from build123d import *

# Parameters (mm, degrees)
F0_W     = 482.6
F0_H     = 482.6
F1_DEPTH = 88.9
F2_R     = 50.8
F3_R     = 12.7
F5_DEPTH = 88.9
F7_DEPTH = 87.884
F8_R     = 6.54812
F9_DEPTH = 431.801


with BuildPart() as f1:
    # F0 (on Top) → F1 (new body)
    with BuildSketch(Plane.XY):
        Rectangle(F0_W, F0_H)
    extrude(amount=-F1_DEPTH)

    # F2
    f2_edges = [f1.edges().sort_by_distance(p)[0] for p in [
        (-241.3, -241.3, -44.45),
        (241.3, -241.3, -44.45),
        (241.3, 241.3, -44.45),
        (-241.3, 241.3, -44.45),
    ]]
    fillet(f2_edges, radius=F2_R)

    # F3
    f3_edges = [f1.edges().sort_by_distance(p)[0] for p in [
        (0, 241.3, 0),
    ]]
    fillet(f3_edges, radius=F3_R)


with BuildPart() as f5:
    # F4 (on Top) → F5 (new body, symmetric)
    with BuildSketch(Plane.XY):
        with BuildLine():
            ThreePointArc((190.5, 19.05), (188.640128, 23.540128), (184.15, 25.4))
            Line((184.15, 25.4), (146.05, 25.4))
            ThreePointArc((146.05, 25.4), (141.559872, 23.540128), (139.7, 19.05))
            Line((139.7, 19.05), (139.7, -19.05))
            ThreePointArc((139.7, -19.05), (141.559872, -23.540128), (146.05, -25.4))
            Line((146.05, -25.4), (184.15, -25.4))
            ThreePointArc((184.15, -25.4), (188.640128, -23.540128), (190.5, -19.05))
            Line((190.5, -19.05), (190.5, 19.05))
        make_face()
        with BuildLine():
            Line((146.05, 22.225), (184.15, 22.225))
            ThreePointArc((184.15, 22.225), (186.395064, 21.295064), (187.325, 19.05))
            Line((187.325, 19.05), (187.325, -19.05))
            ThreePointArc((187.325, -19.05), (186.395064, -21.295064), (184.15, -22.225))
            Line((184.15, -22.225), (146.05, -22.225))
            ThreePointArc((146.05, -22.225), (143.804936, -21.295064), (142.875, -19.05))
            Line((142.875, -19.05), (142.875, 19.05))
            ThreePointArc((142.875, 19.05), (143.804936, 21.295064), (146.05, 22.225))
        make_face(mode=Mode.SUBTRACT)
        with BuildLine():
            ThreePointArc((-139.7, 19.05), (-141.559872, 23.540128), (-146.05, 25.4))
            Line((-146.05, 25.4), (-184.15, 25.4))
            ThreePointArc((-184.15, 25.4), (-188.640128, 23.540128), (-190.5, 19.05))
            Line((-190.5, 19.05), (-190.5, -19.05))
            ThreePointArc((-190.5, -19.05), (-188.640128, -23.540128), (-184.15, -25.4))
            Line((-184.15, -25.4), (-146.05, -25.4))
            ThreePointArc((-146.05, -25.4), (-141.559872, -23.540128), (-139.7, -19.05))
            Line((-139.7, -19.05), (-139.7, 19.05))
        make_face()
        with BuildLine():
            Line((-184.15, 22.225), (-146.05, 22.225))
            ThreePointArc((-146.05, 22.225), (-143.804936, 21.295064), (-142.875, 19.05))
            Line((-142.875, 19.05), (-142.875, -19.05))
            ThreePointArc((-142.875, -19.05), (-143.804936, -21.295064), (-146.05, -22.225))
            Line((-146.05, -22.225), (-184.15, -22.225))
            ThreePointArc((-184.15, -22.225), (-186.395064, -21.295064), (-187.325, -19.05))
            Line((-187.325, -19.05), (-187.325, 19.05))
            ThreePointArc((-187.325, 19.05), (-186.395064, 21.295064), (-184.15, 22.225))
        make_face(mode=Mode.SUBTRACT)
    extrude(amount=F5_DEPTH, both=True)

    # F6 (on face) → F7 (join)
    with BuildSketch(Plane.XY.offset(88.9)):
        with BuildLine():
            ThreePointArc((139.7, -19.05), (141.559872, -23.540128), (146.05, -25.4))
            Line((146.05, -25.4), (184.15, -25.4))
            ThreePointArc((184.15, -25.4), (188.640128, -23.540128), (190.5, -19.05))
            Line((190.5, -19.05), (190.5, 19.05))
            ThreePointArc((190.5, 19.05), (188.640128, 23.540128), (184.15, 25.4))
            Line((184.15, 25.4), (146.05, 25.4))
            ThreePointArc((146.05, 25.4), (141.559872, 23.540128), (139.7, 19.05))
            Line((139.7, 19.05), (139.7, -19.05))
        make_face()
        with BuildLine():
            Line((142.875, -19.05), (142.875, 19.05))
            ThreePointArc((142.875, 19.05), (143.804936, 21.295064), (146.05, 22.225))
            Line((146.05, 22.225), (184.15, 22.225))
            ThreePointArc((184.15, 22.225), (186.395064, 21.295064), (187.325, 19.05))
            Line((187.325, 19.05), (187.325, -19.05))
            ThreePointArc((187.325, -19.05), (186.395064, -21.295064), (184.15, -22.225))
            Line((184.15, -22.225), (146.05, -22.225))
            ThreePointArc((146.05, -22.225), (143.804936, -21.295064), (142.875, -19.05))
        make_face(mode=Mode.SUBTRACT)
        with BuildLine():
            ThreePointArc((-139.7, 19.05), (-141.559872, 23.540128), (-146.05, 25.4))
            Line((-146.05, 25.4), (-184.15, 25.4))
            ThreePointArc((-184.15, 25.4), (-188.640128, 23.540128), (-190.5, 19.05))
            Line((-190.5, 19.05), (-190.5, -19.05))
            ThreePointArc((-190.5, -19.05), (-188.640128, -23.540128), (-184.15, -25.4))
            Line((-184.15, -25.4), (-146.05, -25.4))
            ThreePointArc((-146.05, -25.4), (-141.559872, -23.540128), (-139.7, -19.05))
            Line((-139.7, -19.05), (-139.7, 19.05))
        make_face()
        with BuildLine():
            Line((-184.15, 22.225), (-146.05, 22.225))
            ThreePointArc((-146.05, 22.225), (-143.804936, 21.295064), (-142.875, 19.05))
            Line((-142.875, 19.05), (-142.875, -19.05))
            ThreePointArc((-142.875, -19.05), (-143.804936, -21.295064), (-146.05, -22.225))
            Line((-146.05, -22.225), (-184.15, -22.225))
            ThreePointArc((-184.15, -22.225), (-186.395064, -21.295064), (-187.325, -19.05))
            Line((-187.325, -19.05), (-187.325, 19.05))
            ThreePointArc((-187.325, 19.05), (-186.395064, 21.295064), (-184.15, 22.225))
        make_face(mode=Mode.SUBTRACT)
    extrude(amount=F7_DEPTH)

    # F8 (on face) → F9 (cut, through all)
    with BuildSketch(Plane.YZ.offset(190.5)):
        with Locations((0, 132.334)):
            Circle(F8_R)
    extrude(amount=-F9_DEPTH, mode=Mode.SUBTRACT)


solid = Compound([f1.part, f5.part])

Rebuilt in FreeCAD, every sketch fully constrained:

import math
import FreeCAD as App
import Part
import Sketcher

V = App.Vector
Q = App.Units.Quantity


def edges_at(feature, points):
    """Names of the edges that pass closest to the given points."""
    edges = feature.Shape.Edges
    near = lambda p: min(range(len(edges)), key=lambda i: edges[i].distToShape(Part.Vertex(*p))[0])
    return sorted({f"Edge{near(p) + 1}" for p in points})

doc = App.newDocument("Part")
body = doc.addObject("PartDesign::Body", "Body")

# Sketch on XY plane
sketch1 = body.newObject("Sketcher::SketchObject", "Sketch")
sketch1.AttachmentSupport = (doc.getObject("XY_Plane"), [""])
sketch1.MapMode = "FlatFace"
sketch1.addGeometry([
    Part.LineSegment(V(-241, 241, 0), V(-241, -241, 0)),
    Part.LineSegment(V(-241, -241, 0), V(241, -241, 0)),
    Part.LineSegment(V(241, -241, 0), V(241, 241, 0)),
    Part.LineSegment(V(241, 241, 0), V(-241, 241, 0)),
], False)
sketch1.addConstraint([
    Sketcher.Constraint("Coincident", 0, 2, 1, 1),
    Sketcher.Constraint("Coincident", 1, 2, 2, 1),
    Sketcher.Constraint("Coincident", 2, 2, 3, 1),
    Sketcher.Constraint("Coincident", 3, 2, 0, 1),
    Sketcher.Constraint("Vertical", 0),
    Sketcher.Constraint("Horizontal", 1),
    Sketcher.Constraint("Vertical", 2),
    Sketcher.Constraint("Horizontal", 3),
    Sketcher.Constraint("Symmetric", 0, 2, 2, 2, -1, 1),
    Sketcher.Constraint("Equal", 3, 0),
    Sketcher.Constraint("DistanceX", 1, 1, 1, 2, Q("19 in")),
])
pad1 = body.newObject("PartDesign::Pad", "Pad")
pad1.Profile = sketch1
pad1.Length = Q("3.5 in")
pad1.Reversed = True
doc.recompute()

fillet = body.newObject("PartDesign::Fillet", "Fillet")
fillet.Base = (pad1, edges_at(pad1, [
    (-241.3, -241.3, -44.45),
    (241.3, -241.3, -44.45),
    (241.3, 241.3, -44.45),
    (-241.3, 241.3, -44.45),
]))
fillet.Radius = Q("2 in")
doc.recompute()

fillet2 = body.newObject("PartDesign::Fillet", "Fillet001")
fillet2.Base = (fillet, edges_at(fillet, [(0, 241.3, 0)]))
fillet2.Radius = Q("0.5 in")
body2 = doc.addObject("PartDesign::Body", "Body001")
body2.AllowCompound = True

# Sketch on XY plane
sketch2 = body2.newObject("Sketcher::SketchObject", "Sketch001")
sketch2.AttachmentSupport = (doc.getObject("XY_Plane001"), [""])
sketch2.MapMode = "FlatFace"
sketch2.addGeometry([
    Part.ArcOfCircle(Part.Circle(V(184.1, 19, 0), V(0, 0, 1), 6.4), math.radians(0), math.radians(90)),  # 0
    Part.LineSegment(V(184.2, 25.4, 0), V(146.1, 25.4, 0)),  # 1
    Part.ArcOfCircle(Part.Circle(V(146.1, 19, 0), V(0, 0, 1), 6.4), math.radians(90), math.radians(180)),  # 2
    Part.LineSegment(V(139.7, 19.1, 0), V(139.7, -19.1, 0)),  # 3
    Part.ArcOfCircle(Part.Circle(V(146.1, -19, 0), V(0, 0, 1), 6.4), math.radians(-180), math.radians(-90)),  # 4
    Part.LineSegment(V(146.1, -25.4, 0), V(184.2, -25.4, 0)),  # 5
    Part.ArcOfCircle(Part.Circle(V(184.1, -19, 0), V(0, 0, 1), 6.4), math.radians(-90), math.radians(0)),  # 6
    Part.LineSegment(V(190.5, -19.1, 0), V(190.5, 19.1, 0)),  # 7
    Part.ArcOfCircle(Part.Circle(V(146.1, 19, 0), V(0, 0, 1), 3.2), math.radians(90), math.radians(180)),  # 8
    Part.LineSegment(V(146.1, 22.2, 0), V(184.2, 22.2, 0)),  # 9
    Part.ArcOfCircle(Part.Circle(V(184.1, 19, 0), V(0, 0, 1), 3.2), math.radians(0), math.radians(90)),  # 10
    Part.LineSegment(V(187.3, 19.1, 0), V(187.3, -19.1, 0)),  # 11
    Part.ArcOfCircle(Part.Circle(V(184.1, -19, 0), V(0, 0, 1), 3.2), math.radians(-90), math.radians(0)),  # 12
    Part.LineSegment(V(184.2, -22.2, 0), V(146.1, -22.2, 0)),  # 13
    Part.ArcOfCircle(Part.Circle(V(146.1, -19, 0), V(0, 0, 1), 3.2), math.radians(-180), math.radians(-90)),  # 14
    Part.LineSegment(V(142.9, -19.1, 0), V(142.9, 19.1, 0)),  # 15
    Part.ArcOfCircle(Part.Circle(V(-146.1, 19, 0), V(0, 0, 1), 6.4), math.radians(0), math.radians(90)),  # 16
    Part.LineSegment(V(-146.1, 25.4, 0), V(-184.2, 25.4, 0)),  # 17
    Part.ArcOfCircle(Part.Circle(V(-184.1, 19, 0), V(0, 0, 1), 6.4), math.radians(90), math.radians(180)),  # 18
    Part.LineSegment(V(-190.5, 19.1, 0), V(-190.5, -19.1, 0)),  # 19
    Part.ArcOfCircle(Part.Circle(V(-184.1, -19, 0), V(0, 0, 1), 6.4), math.radians(-180), math.radians(-90)),  # 20
    Part.LineSegment(V(-184.2, -25.4, 0), V(-146.1, -25.4, 0)),  # 21
    Part.ArcOfCircle(Part.Circle(V(-146.1, -19, 0), V(0, 0, 1), 6.4), math.radians(-90), math.radians(0)),  # 22
    Part.LineSegment(V(-139.7, -19.1, 0), V(-139.7, 19.1, 0)),  # 23
    Part.ArcOfCircle(Part.Circle(V(-184.1, 19, 0), V(0, 0, 1), 3.2), math.radians(90), math.radians(180)),  # 24
    Part.LineSegment(V(-184.2, 22.2, 0), V(-146.1, 22.2, 0)),  # 25
    Part.ArcOfCircle(Part.Circle(V(-146.1, 19, 0), V(0, 0, 1), 3.2), math.radians(0), math.radians(90)),  # 26
    Part.LineSegment(V(-142.9, 19.1, 0), V(-142.9, -19.1, 0)),  # 27
    Part.ArcOfCircle(Part.Circle(V(-146.1, -19, 0), V(0, 0, 1), 3.2), math.radians(-90), math.radians(0)),  # 28
    Part.LineSegment(V(-146.1, -22.2, 0), V(-184.2, -22.2, 0)),  # 29
    Part.ArcOfCircle(Part.Circle(V(-184.1, -19, 0), V(0, 0, 1), 3.2), math.radians(-180), math.radians(-90)),  # 30
    Part.LineSegment(V(-187.3, -19.1, 0), V(-187.3, 19.1, 0)),  # 31
], False)
sketch2.addConstraint([
    Sketcher.Constraint("Tangent", 0, 2, 1, 1),
    Sketcher.Constraint("Tangent", 1, 2, 2, 1),
    Sketcher.Constraint("Tangent", 2, 2, 3, 1),
    Sketcher.Constraint("Tangent", 3, 2, 4, 1),
    Sketcher.Constraint("Tangent", 4, 2, 5, 1),
    Sketcher.Constraint("Tangent", 5, 2, 6, 1),
    Sketcher.Constraint("Tangent", 6, 2, 7, 1),
    Sketcher.Constraint("Tangent", 7, 2, 0, 1),
    Sketcher.Constraint("Tangent", 8, 1, 9, 1),
    Sketcher.Constraint("Tangent", 9, 2, 10, 2),
    Sketcher.Constraint("Tangent", 10, 1, 11, 1),
    Sketcher.Constraint("Tangent", 11, 2, 12, 2),
    Sketcher.Constraint("Tangent", 12, 1, 13, 1),
    Sketcher.Constraint("Tangent", 13, 2, 14, 2),
    Sketcher.Constraint("Tangent", 14, 1, 15, 1),
    Sketcher.Constraint("Tangent", 15, 2, 8, 2),
    Sketcher.Constraint("Tangent", 16, 2, 17, 1),
    Sketcher.Constraint("Tangent", 17, 2, 18, 1),
    Sketcher.Constraint("Tangent", 18, 2, 19, 1),
    Sketcher.Constraint("Tangent", 19, 2, 20, 1),
    Sketcher.Constraint("Tangent", 20, 2, 21, 1),
    Sketcher.Constraint("Tangent", 21, 2, 22, 1),
    Sketcher.Constraint("Tangent", 22, 2, 23, 1),
    Sketcher.Constraint("Tangent", 23, 2, 16, 1),
    Sketcher.Constraint("Tangent", 24, 1, 25, 1),
    Sketcher.Constraint("Tangent", 25, 2, 26, 2),
    Sketcher.Constraint("Tangent", 26, 1, 27, 1),
    Sketcher.Constraint("Tangent", 27, 2, 28, 2),
    Sketcher.Constraint("Tangent", 28, 1, 29, 1),
    Sketcher.Constraint("Tangent", 29, 2, 30, 2),
    Sketcher.Constraint("Tangent", 30, 1, 31, 1),
    Sketcher.Constraint("Tangent", 31, 2, 24, 2),
    Sketcher.Constraint("Horizontal", 1),
    Sketcher.Constraint("Vertical", 3),
    Sketcher.Constraint("Horizontal", 5),
    Sketcher.Constraint("Vertical", 7),
    Sketcher.Constraint("Horizontal", 9),
    Sketcher.Constraint("Vertical", 11),
    Sketcher.Constraint("Horizontal", 13),
    Sketcher.Constraint("Vertical", 15),
    Sketcher.Constraint("Horizontal", 17),
    Sketcher.Constraint("Vertical", 19),
    Sketcher.Constraint("Horizontal", 21),
    Sketcher.Constraint("Vertical", 23),
    Sketcher.Constraint("Horizontal", 25),
    Sketcher.Constraint("Vertical", 27),
    Sketcher.Constraint("Horizontal", 29),
    Sketcher.Constraint("Vertical", 31),
    Sketcher.Constraint("Coincident", 8, 3, 2, 3),
    Sketcher.Constraint("Coincident", 10, 3, 0, 3),
    Sketcher.Constraint("Coincident", 12, 3, 6, 3),
    Sketcher.Constraint("Coincident", 24, 3, 18, 3),
    Sketcher.Constraint("Coincident", 26, 3, 16, 3),
    Sketcher.Constraint("Coincident", 28, 3, 22, 3),
    Sketcher.Constraint("Equal", 0, 2),
    Sketcher.Constraint("Equal", 2, 4),
    Sketcher.Constraint("Equal", 4, 6),
    Sketcher.Constraint("Equal", 12, 14),
    Sketcher.Constraint("Equal", 6, 16),
    Sketcher.Constraint("Equal", 16, 18),
    Sketcher.Constraint("Equal", 18, 20),
    Sketcher.Constraint("Equal", 20, 22),
    Sketcher.Constraint("Equal", 14, 24),
    Sketcher.Constraint("Equal", 28, 30),
    Sketcher.Constraint("Symmetric", 4, 3, 16, 3, -1, 1),
    Sketcher.Constraint("Symmetric", 0, 3, 20, 3, -1, 1),
    Sketcher.Constraint("Horizontal", 10, 3, 16, 3),
    Sketcher.Constraint("Equal", 29, 3),
    Sketcher.Constraint("Radius", 0, Q("0.25 in")),
    Sketcher.Constraint("DistanceX", 1, 2, 1, 1, Q("1.5 in")),
    Sketcher.Constraint("Radius", 8, Q("0.125 in")),
    Sketcher.Constraint("DistanceX", 16, 3, 0, 3, Q("13 in")),
])
pad2 = body2.newObject("PartDesign::Pad", "Pad001")
pad2.Profile = sketch2
pad2.Length = Q("7 in")
pad2.Midplane = True

# Sketch on XY plane
sketch3 = body2.newObject("Sketcher::SketchObject", "Sketch002")
sketch3.AttachmentSupport = (doc.getObject("XY_Plane001"), [""])
sketch3.MapMode = "FlatFace"
sketch3.AttachmentOffset = App.Placement(V(0, 0, 3.5 * 25.4), App.Rotation())
sketch3.addGeometry([
    Part.ArcOfCircle(Part.Circle(V(146.1, -19, 0), V(0, 0, 1), 6.4), math.radians(-180), math.radians(-90)),  # 0
    Part.LineSegment(V(146.1, -25.4, 0), V(184.2, -25.4, 0)),  # 1
    Part.ArcOfCircle(Part.Circle(V(184.1, -19, 0), V(0, 0, 1), 6.4), math.radians(-90), math.radians(0)),  # 2
    Part.LineSegment(V(190.5, -19.1, 0), V(190.5, 19.1, 0)),  # 3
    Part.ArcOfCircle(Part.Circle(V(184.1, 19, 0), V(0, 0, 1), 6.4), math.radians(0), math.radians(90)),  # 4
    Part.LineSegment(V(184.2, 25.4, 0), V(146.1, 25.4, 0)),  # 5
    Part.ArcOfCircle(Part.Circle(V(146.1, 19, 0), V(0, 0, 1), 6.4), math.radians(90), math.radians(180)),  # 6
    Part.LineSegment(V(139.7, 19.1, 0), V(139.7, -19.1, 0)),  # 7
    Part.ArcOfCircle(Part.Circle(V(146.1, -19, 0), V(0, 0, 1), 3.2), math.radians(-180), math.radians(-90)),  # 8
    Part.LineSegment(V(142.9, -19.1, 0), V(142.9, 19.1, 0)),  # 9
    Part.ArcOfCircle(Part.Circle(V(146.1, 19, 0), V(0, 0, 1), 3.2), math.radians(90), math.radians(180)),  # 10
    Part.LineSegment(V(146.1, 22.2, 0), V(184.2, 22.2, 0)),  # 11
    Part.ArcOfCircle(Part.Circle(V(184.1, 19, 0), V(0, 0, 1), 3.2), math.radians(0), math.radians(90)),  # 12
    Part.LineSegment(V(187.3, 19.1, 0), V(187.3, -19.1, 0)),  # 13
    Part.ArcOfCircle(Part.Circle(V(184.1, -19, 0), V(0, 0, 1), 3.2), math.radians(-90), math.radians(0)),  # 14
    Part.LineSegment(V(184.2, -22.2, 0), V(146.1, -22.2, 0)),  # 15
    Part.ArcOfCircle(Part.Circle(V(-146.1, 19, 0), V(0, 0, 1), 6.4), math.radians(0), math.radians(90)),  # 16
    Part.LineSegment(V(-146.1, 25.4, 0), V(-184.2, 25.4, 0)),  # 17
    Part.ArcOfCircle(Part.Circle(V(-184.1, 19, 0), V(0, 0, 1), 6.4), math.radians(90), math.radians(180)),  # 18
    Part.LineSegment(V(-190.5, 19.1, 0), V(-190.5, -19.1, 0)),  # 19
    Part.ArcOfCircle(Part.Circle(V(-184.1, -19, 0), V(0, 0, 1), 6.4), math.radians(-180), math.radians(-90)),  # 20
    Part.LineSegment(V(-184.2, -25.4, 0), V(-146.1, -25.4, 0)),  # 21
    Part.ArcOfCircle(Part.Circle(V(-146.1, -19, 0), V(0, 0, 1), 6.4), math.radians(-90), math.radians(0)),  # 22
    Part.LineSegment(V(-139.7, -19.1, 0), V(-139.7, 19.1, 0)),  # 23
    Part.ArcOfCircle(Part.Circle(V(-184.1, 19, 0), V(0, 0, 1), 3.2), math.radians(90), math.radians(180)),  # 24
    Part.LineSegment(V(-184.2, 22.2, 0), V(-146.1, 22.2, 0)),  # 25
    Part.ArcOfCircle(Part.Circle(V(-146.1, 19, 0), V(0, 0, 1), 3.2), math.radians(0), math.radians(90)),  # 26
    Part.LineSegment(V(-142.9, 19.1, 0), V(-142.9, -19.1, 0)),  # 27
    Part.ArcOfCircle(Part.Circle(V(-146.1, -19, 0), V(0, 0, 1), 3.2), math.radians(-90), math.radians(0)),  # 28
    Part.LineSegment(V(-146.1, -22.2, 0), V(-184.2, -22.2, 0)),  # 29
    Part.ArcOfCircle(Part.Circle(V(-184.1, -19, 0), V(0, 0, 1), 3.2), math.radians(-180), math.radians(-90)),  # 30
    Part.LineSegment(V(-187.3, -19.1, 0), V(-187.3, 19.1, 0)),  # 31
], False)
sketch3.addConstraint([
    Sketcher.Constraint("Tangent", 0, 2, 1, 1),
    Sketcher.Constraint("Tangent", 1, 2, 2, 1),
    Sketcher.Constraint("Tangent", 2, 2, 3, 1),
    Sketcher.Constraint("Tangent", 3, 2, 4, 1),
    Sketcher.Constraint("Tangent", 4, 2, 5, 1),
    Sketcher.Constraint("Tangent", 5, 2, 6, 1),
    Sketcher.Constraint("Tangent", 6, 2, 7, 1),
    Sketcher.Constraint("Tangent", 7, 2, 0, 1),
    Sketcher.Constraint("Tangent", 8, 1, 9, 1),
    Sketcher.Constraint("Tangent", 9, 2, 10, 2),
    Sketcher.Constraint("Tangent", 10, 1, 11, 1),
    Sketcher.Constraint("Tangent", 11, 2, 12, 2),
    Sketcher.Constraint("Tangent", 12, 1, 13, 1),
    Sketcher.Constraint("Tangent", 13, 2, 14, 2),
    Sketcher.Constraint("Tangent", 14, 1, 15, 1),
    Sketcher.Constraint("Tangent", 15, 2, 8, 2),
    Sketcher.Constraint("Tangent", 16, 2, 17, 1),
    Sketcher.Constraint("Tangent", 17, 2, 18, 1),
    Sketcher.Constraint("Tangent", 18, 2, 19, 1),
    Sketcher.Constraint("Tangent", 19, 2, 20, 1),
    Sketcher.Constraint("Tangent", 20, 2, 21, 1),
    Sketcher.Constraint("Tangent", 21, 2, 22, 1),
    Sketcher.Constraint("Tangent", 22, 2, 23, 1),
    Sketcher.Constraint("Tangent", 23, 2, 16, 1),
    Sketcher.Constraint("Tangent", 24, 1, 25, 1),
    Sketcher.Constraint("Tangent", 25, 2, 26, 2),
    Sketcher.Constraint("Tangent", 26, 1, 27, 1),
    Sketcher.Constraint("Tangent", 27, 2, 28, 2),
    Sketcher.Constraint("Tangent", 28, 1, 29, 1),
    Sketcher.Constraint("Tangent", 29, 2, 30, 2),
    Sketcher.Constraint("Tangent", 30, 1, 31, 1),
    Sketcher.Constraint("Tangent", 31, 2, 24, 2),
    Sketcher.Constraint("Horizontal", 1),
    Sketcher.Constraint("Vertical", 3),
    Sketcher.Constraint("Horizontal", 5),
    Sketcher.Constraint("Vertical", 7),
    Sketcher.Constraint("Vertical", 9),
    Sketcher.Constraint("Horizontal", 11),
    Sketcher.Constraint("Vertical", 13),
    Sketcher.Constraint("Horizontal", 15),
    Sketcher.Constraint("Horizontal", 17),
    Sketcher.Constraint("Vertical", 19),
    Sketcher.Constraint("Horizontal", 21),
    Sketcher.Constraint("Vertical", 23),
    Sketcher.Constraint("Horizontal", 25),
    Sketcher.Constraint("Vertical", 27),
    Sketcher.Constraint("Horizontal", 29),
    Sketcher.Constraint("Vertical", 31),
    Sketcher.Constraint("Coincident", 8, 3, 0, 3),
    Sketcher.Constraint("Coincident", 10, 3, 6, 3),
    Sketcher.Constraint("Coincident", 12, 3, 4, 3),
    Sketcher.Constraint("Coincident", 24, 3, 18, 3),
    Sketcher.Constraint("Coincident", 26, 3, 16, 3),
    Sketcher.Constraint("Coincident", 28, 3, 22, 3),
    Sketcher.Constraint("Equal", 0, 2),
    Sketcher.Constraint("Equal", 2, 4),
    Sketcher.Constraint("Equal", 4, 6),
    Sketcher.Constraint("Equal", 12, 14),
    Sketcher.Constraint("Equal", 6, 16),
    Sketcher.Constraint("Equal", 16, 18),
    Sketcher.Constraint("Equal", 18, 20),
    Sketcher.Constraint("Equal", 20, 22),
    Sketcher.Constraint("Equal", 14, 24),
    Sketcher.Constraint("Equal", 28, 30),
    Sketcher.Constraint("Symmetric", 0, 3, 16, 3, -1, 1),
    Sketcher.Constraint("Symmetric", 4, 3, 20, 3, -1, 1),
    Sketcher.Constraint("Horizontal", 12, 3, 16, 3),
    Sketcher.Constraint("Equal", 29, 3),
    Sketcher.Constraint("Radius", 0, Q("0.25 in")),
    Sketcher.Constraint("DistanceX", 1, 1, 1, 2, Q("1.5 in")),
    Sketcher.Constraint("Radius", 8, Q("0.125 in")),
    Sketcher.Constraint("DistanceX", 16, 3, 4, 3, Q("13 in")),
])
pad3 = body2.newObject("PartDesign::Pad", "Pad002")
pad3.Profile = sketch3
pad3.Length = Q("3.46 in")

# Sketch on YZ plane
sketch4 = body2.newObject("Sketcher::SketchObject", "Sketch003")
sketch4.AttachmentSupport = (doc.getObject("YZ_Plane001"), [""])
sketch4.MapMode = "FlatFace"
sketch4.AttachmentOffset = App.Placement(V(0, 0, 7.5 * 25.4), App.Rotation())
sketch4.addGeometry(Part.Circle(V(0, 132, 0), V(0, 0, 1), 7), False)
sketch4.addConstraint([
    Sketcher.Constraint("PointOnObject", 0, 3, -2),
    Sketcher.Constraint("Diameter", 0, Q("0.5156 in")),
    Sketcher.Constraint("DistanceY", -1, 1, 0, 3, Q("5.21 in")),
])
pocket1 = body2.newObject("PartDesign::Pocket", "Pocket")
pocket1.Profile = sketch4
pocket1.Type = "ThroughAll"

doc.recompute()
